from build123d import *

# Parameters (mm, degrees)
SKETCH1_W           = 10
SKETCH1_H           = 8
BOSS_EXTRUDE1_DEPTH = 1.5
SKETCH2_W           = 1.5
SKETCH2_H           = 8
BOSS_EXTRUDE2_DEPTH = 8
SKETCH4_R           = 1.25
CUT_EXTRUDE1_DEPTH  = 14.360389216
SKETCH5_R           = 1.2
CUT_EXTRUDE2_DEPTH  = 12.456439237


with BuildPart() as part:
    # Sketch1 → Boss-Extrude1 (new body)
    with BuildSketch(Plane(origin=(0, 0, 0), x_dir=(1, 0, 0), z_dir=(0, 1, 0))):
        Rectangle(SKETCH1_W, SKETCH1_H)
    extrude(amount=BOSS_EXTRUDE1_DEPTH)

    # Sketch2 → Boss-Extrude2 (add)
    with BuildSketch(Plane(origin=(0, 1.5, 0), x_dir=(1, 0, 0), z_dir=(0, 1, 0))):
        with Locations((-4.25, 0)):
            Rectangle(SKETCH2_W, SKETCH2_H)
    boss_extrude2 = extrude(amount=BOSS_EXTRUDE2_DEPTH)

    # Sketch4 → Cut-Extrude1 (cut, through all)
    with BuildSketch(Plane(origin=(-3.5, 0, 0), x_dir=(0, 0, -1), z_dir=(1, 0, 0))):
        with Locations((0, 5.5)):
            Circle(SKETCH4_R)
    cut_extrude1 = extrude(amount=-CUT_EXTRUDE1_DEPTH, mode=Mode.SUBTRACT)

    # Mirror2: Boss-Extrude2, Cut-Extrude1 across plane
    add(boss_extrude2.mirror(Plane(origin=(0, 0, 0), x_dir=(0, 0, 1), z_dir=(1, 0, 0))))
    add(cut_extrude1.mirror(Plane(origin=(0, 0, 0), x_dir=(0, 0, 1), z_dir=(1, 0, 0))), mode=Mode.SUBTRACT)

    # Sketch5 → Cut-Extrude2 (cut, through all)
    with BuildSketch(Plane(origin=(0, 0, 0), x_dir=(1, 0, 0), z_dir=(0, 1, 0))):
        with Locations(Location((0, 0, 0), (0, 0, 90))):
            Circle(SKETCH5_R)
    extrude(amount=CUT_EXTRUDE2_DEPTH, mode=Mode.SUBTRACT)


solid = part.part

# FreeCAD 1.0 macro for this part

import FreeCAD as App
import Part
import Sketcher
from FreeCAD import Vector

doc = App.newDocument("Part")
params = doc.addObject("Spreadsheet::Sheet", "Params")
for row, (alias, value) in enumerate([
    ("sketch1_width", "10 mm"),
    ("sketch1_height", "8 mm"),
    ("pad1_length", "1.5 mm"),
    ("sketch2_height", "8 mm"),
    ("sketch2_width", "1.5 mm"),
    ("pad2_length", "8 mm"),
    ("sketch3_diameter", "2.5 mm"),
    ("sketch4_diameter", "2.4 mm"),
], start=1):
    params.set(f"A{row}", alias)
    params.set(f"B{row}", "=" + value)
    params.setAlias(f"B{row}", alias)

body = doc.addObject("PartDesign::Body", "Body")

# Sketch on XZ plane
sketch1 = doc.addObject("Sketcher::SketchObject", "Sketch")
body.addObject(sketch1)
sketch1.AttachmentSupport = (doc.XZ_Plane, [""])
sketch1.MapMode = "FlatFace"
sketch1.addGeometry(Part.LineSegment(Vector(-5, -4, 0), Vector(-5, 4, 0)), False)
sketch1.addGeometry(Part.LineSegment(Vector(-5, 4, 0), Vector(5, 4, 0)), False)
sketch1.addGeometry(Part.LineSegment(Vector(5, 4, 0), Vector(5, -4, 0)), False)
sketch1.addGeometry(Part.LineSegment(Vector(5, -4, 0), Vector(-5, -4, 0)), False)
sketch1.addConstraint(Sketcher.Constraint("Coincident", 0, 2, 1, 1))
sketch1.addConstraint(Sketcher.Constraint("Coincident", 1, 2, 2, 1))
sketch1.addConstraint(Sketcher.Constraint("Coincident", 2, 2, 3, 1))
sketch1.addConstraint(Sketcher.Constraint("Coincident", 3, 2, 0, 1))
sketch1.addConstraint(Sketcher.Constraint("Vertical", 0))
sketch1.addConstraint(Sketcher.Constraint("Horizontal", 1))
sketch1.addConstraint(Sketcher.Constraint("Vertical", 2))
sketch1.addConstraint(Sketcher.Constraint("Horizontal", 3))
sketch1.addConstraint(Sketcher.Constraint("Symmetric", 0, 2, 2, 2, -1, 1))
sketch1.addConstraint(Sketcher.Constraint("DistanceX", 1, 1, 1, 2, 10.0))
sketch1.addConstraint(Sketcher.Constraint("DistanceY", 0, 1, 0, 2, 8.0))
sketch1.setExpression("Constraints[9]", "Params.sketch1_width")
sketch1.setExpression("Constraints[10]", "Params.sketch1_height")
pad1 = doc.addObject("PartDesign::Pad", "Pad")
body.addObject(pad1)
pad1.Profile = sketch1
pad1.setExpression("Length", "Params.pad1_length")
pad1.Reversed = True

# Sketch on XZ plane
sketch2 = doc.addObject("Sketcher::SketchObject", "Sketch001")
body.addObject(sketch2)
sketch2.AttachmentSupport = (doc.XZ_Plane, [""])
sketch2.MapMode = "FlatFace"
sketch2.AttachmentOffset = App.Placement(Vector(0, 0, -1.5), App.Rotation())
sketch2.addGeometry(Part.LineSegment(Vector(-5, -4, 0), Vector(-5, 4, 0)), False)
sketch2.addGeometry(Part.LineSegment(Vector(-5, 4, 0), Vector(-3.5, 4, 0)), False)
sketch2.addGeometry(Part.LineSegment(Vector(-3.5, 4, 0), Vector(-3.5, -4, 0)), False)
sketch2.addGeometry(Part.LineSegment(Vector(-3.5, -4, 0), Vector(-5, -4, 0)), False)
sketch2.addConstraint(Sketcher.Constraint("Coincident", 0, 2, 1, 1))
sketch2.addConstraint(Sketcher.Constraint("Coincident", 1, 2, 2, 1))
sketch2.addConstraint(Sketcher.Constraint("Coincident", 2, 2, 3, 1))
sketch2.addConstraint(Sketcher.Constraint("Coincident", 3, 2, 0, 1))
sketch2.addConstraint(Sketcher.Constraint("Vertical", 0))
sketch2.addConstraint(Sketcher.Constraint("Horizontal", 1))
sketch2.addConstraint(Sketcher.Constraint("Vertical", 2))
sketch2.addConstraint(Sketcher.Constraint("Horizontal", 3))
sketch2.addConstraint(Sketcher.Constraint("DistanceY", 0, 1, 0, 2, 8.0))
sketch2.addConstraint(Sketcher.Constraint("DistanceX", 1, 1, 1, 2, 1.5))
sketch2.addConstraint(Sketcher.Constraint("DistanceX", 0, 2, -1, 1, 5.0))
sketch2.addConstraint(Sketcher.Constraint("DistanceY", -1, 1, 0, 2, 4.0))
sketch2.setExpression("Constraints[8]", "Params.sketch2_height")
sketch2.setExpression("Constraints[9]", "Params.sketch2_width")
pad2 = doc.addObject("PartDesign::Pad", "Pad001")
body.addObject(pad2)
pad2.Profile = sketch2
pad2.setExpression("Length", "Params.pad2_length")
pad2.Reversed = True

# Sketch on YZ plane
sketch3 = doc.addObject("Sketcher::SketchObject", "Sketch002")
body.addObject(sketch3)
sketch3.AttachmentSupport = (doc.YZ_Plane, [""])
sketch3.MapMode = "FlatFace"
sketch3.AttachmentOffset = App.Placement(Vector(0, 0, -3.5), App.Rotation())
sketch3.addGeometry(Part.Circle(Vector(5.5, 0, 0), Vector(0, 0, 1), 1.25), False)
sketch3.addConstraint(Sketcher.Constraint("PointOnObject", 0, 3, -1))
sketch3.addConstraint(Sketcher.Constraint("Diameter", 0, 2.5))
sketch3.addConstraint(Sketcher.Constraint("DistanceX", -1, 1, 0, 3, 5.5))
sketch3.setExpression("Constraints[1]", "Params.sketch3_diameter")
pocket1 = doc.addObject("PartDesign::Pocket", "Pocket")
body.addObject(pocket1)
pocket1.Profile = sketch3
pocket1.Type = "ThroughAll"
doc.recompute()

mirrored = doc.addObject("PartDesign::Mirrored", "Mirrored")
body.addObject(mirrored)
mirrored.Originals = [pad2, pocket1]
mirrored.MirrorPlane = (doc.YZ_Plane, [""])
body.Tip = mirrored

# Sketch on XZ plane
sketch4 = doc.addObject("Sketcher::SketchObject", "Sketch003")
body.addObject(sketch4)
sketch4.AttachmentSupport = (doc.XZ_Plane, [""])
sketch4.MapMode = "FlatFace"
sketch4.addGeometry(Part.Circle(Vector(0, 0, 0), Vector(0, 0, 1), 1.2), False)
sketch4.addConstraint(Sketcher.Constraint("Coincident", 0, 3, -1, 1))
sketch4.addConstraint(Sketcher.Constraint("Diameter", 0, 2.4))
sketch4.setExpression("Constraints[1]", "Params.sketch4_diameter")
pocket2 = doc.addObject("PartDesign::Pocket", "Pocket001")
body.addObject(pocket2)
pocket2.Profile = sketch4
pocket2.Type = "ThroughAll"

doc.recompute()
